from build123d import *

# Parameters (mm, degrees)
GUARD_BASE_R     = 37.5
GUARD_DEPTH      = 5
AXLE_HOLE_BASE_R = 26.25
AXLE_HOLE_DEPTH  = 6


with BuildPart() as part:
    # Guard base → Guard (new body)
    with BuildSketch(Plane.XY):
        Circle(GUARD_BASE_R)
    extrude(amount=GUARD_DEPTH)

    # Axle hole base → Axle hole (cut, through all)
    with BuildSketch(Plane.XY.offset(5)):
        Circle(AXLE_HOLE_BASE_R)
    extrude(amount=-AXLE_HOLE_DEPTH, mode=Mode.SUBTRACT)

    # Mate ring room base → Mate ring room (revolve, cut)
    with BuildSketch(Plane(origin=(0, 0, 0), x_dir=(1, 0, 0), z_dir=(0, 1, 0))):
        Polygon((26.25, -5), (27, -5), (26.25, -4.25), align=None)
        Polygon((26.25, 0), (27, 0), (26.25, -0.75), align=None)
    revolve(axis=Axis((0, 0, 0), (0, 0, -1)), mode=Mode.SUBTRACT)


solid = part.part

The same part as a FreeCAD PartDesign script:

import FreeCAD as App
import Part
import Sketcher
from FreeCAD import Vector
Q = App.Units.Quantity


def add_polygon(sketch, points):
    """Adds a closed chain of lines whose ends are joined by coincident constraints."""
    first, n = sketch.GeometryCount, len(points)
    for a, b in zip(points, points[1:] + points[:1]):
        sketch.addGeometry(Part.LineSegment(App.Vector(*a, 0), App.Vector(*b, 0)), False)
    for i in range(n):
        sketch.addConstraint(Sketcher.Constraint("Coincident", first + i, 2, first + (i + 1) % n, 1))

doc = App.newDocument("Part")
body = doc.addObject("PartDesign::Body", "Body")

sketch1 = body.newObject("Sketcher::SketchObject", "Sketch")
sketch1.AttachmentSupport = (doc.getObject("XY_Plane"), [""])
sketch1.MapMode = "FlatFace"
sketch1.addGeometry(Part.Circle(Vector(0, 0, 0), Vector(0, 0, 1), 37.5), False)
sketch1.addConstraint(Sketcher.Constraint("Coincident", 0, 3, -1, 1))
sketch1.addConstraint(Sketcher.Constraint("Diameter", 0, Q("75 mm")))
pad1 = body.newObject("PartDesign::Pad", "Pad")
pad1.Profile = sketch1
pad1.Length = 5

sketch2 = body.newObject("Sketcher::SketchObject", "Sketch001")
sketch2.AttachmentSupport = (doc.getObject("XY_Plane"), [""])
sketch2.MapMode = "FlatFace"
sketch2.AttachmentOffset = App.Placement(Vector(0, 0, 5), App.Rotation())
sketch2.addGeometry(Part.Circle(Vector(0, 0, 0), Vector(0, 0, 1), 26.25), False)
sketch2.addConstraint(Sketcher.Constraint("Coincident", 0, 3, -1, 1))
sketch2.addConstraint(Sketcher.Constraint("Diameter", 0, Q("52.5 mm")))
pocket1 = body.newObject("PartDesign::Pocket", "Pocket")
pocket1.Profile = sketch2
pocket1.Type = "ThroughAll"

sketch3 = body.newObject("Sketcher::SketchObject", "Sketch002")
sketch3.AttachmentSupport = (doc.getObject("XZ_Plane"), [""])
sketch3.MapMode = "FlatFace"
add_polygon(sketch3, [(26.25, 5), (27, 5), (26.25, 4.25)])
add_polygon(sketch3, [(27, 0), (26.25, 0), (26.25, 0.75)])
sketch3.addConstraint(Sketcher.Constraint("Horizontal", 0))
sketch3.addConstraint(Sketcher.Constraint("Vertical", 2))
sketch3.addConstraint(Sketcher.Constraint("Horizontal", 3))
sketch3.addConstraint(Sketcher.Constraint("Vertical", 4))
sketch3.addConstraint(Sketcher.Constraint("PointOnObject", 3, 2, -1))
sketch3.addConstraint(Sketcher.Constraint("Perpendicular", 1, 5))
sketch3.addConstraint(Sketcher.Constraint("Vertical", 2, 2, 3, 2))
sketch3.addConstraint(Sketcher.Constraint("Vertical", 0, 2, 5, 2))
sketch3.addConstraint(Sketcher.Constraint("Equal", 3, 2))
sketch3.addConstraint(Sketcher.Constraint("DistanceX", -1, 1, 0, 2, Q("27 mm")))
sketch3.addConstraint(Sketcher.Constraint("DistanceY", -1, 1, 0, 2, Q("5 mm")))
sketch3.addConstraint(Sketcher.Constraint("DistanceX", 0, 1, 0, 2, Q("0.75 mm")))
groove = body.newObject("PartDesign::Groove", "Groove")
groove.Profile = sketch3
groove.ReferenceAxis = (sketch3, ["V_Axis"])
groove.Angle = 360

doc.recompute()
